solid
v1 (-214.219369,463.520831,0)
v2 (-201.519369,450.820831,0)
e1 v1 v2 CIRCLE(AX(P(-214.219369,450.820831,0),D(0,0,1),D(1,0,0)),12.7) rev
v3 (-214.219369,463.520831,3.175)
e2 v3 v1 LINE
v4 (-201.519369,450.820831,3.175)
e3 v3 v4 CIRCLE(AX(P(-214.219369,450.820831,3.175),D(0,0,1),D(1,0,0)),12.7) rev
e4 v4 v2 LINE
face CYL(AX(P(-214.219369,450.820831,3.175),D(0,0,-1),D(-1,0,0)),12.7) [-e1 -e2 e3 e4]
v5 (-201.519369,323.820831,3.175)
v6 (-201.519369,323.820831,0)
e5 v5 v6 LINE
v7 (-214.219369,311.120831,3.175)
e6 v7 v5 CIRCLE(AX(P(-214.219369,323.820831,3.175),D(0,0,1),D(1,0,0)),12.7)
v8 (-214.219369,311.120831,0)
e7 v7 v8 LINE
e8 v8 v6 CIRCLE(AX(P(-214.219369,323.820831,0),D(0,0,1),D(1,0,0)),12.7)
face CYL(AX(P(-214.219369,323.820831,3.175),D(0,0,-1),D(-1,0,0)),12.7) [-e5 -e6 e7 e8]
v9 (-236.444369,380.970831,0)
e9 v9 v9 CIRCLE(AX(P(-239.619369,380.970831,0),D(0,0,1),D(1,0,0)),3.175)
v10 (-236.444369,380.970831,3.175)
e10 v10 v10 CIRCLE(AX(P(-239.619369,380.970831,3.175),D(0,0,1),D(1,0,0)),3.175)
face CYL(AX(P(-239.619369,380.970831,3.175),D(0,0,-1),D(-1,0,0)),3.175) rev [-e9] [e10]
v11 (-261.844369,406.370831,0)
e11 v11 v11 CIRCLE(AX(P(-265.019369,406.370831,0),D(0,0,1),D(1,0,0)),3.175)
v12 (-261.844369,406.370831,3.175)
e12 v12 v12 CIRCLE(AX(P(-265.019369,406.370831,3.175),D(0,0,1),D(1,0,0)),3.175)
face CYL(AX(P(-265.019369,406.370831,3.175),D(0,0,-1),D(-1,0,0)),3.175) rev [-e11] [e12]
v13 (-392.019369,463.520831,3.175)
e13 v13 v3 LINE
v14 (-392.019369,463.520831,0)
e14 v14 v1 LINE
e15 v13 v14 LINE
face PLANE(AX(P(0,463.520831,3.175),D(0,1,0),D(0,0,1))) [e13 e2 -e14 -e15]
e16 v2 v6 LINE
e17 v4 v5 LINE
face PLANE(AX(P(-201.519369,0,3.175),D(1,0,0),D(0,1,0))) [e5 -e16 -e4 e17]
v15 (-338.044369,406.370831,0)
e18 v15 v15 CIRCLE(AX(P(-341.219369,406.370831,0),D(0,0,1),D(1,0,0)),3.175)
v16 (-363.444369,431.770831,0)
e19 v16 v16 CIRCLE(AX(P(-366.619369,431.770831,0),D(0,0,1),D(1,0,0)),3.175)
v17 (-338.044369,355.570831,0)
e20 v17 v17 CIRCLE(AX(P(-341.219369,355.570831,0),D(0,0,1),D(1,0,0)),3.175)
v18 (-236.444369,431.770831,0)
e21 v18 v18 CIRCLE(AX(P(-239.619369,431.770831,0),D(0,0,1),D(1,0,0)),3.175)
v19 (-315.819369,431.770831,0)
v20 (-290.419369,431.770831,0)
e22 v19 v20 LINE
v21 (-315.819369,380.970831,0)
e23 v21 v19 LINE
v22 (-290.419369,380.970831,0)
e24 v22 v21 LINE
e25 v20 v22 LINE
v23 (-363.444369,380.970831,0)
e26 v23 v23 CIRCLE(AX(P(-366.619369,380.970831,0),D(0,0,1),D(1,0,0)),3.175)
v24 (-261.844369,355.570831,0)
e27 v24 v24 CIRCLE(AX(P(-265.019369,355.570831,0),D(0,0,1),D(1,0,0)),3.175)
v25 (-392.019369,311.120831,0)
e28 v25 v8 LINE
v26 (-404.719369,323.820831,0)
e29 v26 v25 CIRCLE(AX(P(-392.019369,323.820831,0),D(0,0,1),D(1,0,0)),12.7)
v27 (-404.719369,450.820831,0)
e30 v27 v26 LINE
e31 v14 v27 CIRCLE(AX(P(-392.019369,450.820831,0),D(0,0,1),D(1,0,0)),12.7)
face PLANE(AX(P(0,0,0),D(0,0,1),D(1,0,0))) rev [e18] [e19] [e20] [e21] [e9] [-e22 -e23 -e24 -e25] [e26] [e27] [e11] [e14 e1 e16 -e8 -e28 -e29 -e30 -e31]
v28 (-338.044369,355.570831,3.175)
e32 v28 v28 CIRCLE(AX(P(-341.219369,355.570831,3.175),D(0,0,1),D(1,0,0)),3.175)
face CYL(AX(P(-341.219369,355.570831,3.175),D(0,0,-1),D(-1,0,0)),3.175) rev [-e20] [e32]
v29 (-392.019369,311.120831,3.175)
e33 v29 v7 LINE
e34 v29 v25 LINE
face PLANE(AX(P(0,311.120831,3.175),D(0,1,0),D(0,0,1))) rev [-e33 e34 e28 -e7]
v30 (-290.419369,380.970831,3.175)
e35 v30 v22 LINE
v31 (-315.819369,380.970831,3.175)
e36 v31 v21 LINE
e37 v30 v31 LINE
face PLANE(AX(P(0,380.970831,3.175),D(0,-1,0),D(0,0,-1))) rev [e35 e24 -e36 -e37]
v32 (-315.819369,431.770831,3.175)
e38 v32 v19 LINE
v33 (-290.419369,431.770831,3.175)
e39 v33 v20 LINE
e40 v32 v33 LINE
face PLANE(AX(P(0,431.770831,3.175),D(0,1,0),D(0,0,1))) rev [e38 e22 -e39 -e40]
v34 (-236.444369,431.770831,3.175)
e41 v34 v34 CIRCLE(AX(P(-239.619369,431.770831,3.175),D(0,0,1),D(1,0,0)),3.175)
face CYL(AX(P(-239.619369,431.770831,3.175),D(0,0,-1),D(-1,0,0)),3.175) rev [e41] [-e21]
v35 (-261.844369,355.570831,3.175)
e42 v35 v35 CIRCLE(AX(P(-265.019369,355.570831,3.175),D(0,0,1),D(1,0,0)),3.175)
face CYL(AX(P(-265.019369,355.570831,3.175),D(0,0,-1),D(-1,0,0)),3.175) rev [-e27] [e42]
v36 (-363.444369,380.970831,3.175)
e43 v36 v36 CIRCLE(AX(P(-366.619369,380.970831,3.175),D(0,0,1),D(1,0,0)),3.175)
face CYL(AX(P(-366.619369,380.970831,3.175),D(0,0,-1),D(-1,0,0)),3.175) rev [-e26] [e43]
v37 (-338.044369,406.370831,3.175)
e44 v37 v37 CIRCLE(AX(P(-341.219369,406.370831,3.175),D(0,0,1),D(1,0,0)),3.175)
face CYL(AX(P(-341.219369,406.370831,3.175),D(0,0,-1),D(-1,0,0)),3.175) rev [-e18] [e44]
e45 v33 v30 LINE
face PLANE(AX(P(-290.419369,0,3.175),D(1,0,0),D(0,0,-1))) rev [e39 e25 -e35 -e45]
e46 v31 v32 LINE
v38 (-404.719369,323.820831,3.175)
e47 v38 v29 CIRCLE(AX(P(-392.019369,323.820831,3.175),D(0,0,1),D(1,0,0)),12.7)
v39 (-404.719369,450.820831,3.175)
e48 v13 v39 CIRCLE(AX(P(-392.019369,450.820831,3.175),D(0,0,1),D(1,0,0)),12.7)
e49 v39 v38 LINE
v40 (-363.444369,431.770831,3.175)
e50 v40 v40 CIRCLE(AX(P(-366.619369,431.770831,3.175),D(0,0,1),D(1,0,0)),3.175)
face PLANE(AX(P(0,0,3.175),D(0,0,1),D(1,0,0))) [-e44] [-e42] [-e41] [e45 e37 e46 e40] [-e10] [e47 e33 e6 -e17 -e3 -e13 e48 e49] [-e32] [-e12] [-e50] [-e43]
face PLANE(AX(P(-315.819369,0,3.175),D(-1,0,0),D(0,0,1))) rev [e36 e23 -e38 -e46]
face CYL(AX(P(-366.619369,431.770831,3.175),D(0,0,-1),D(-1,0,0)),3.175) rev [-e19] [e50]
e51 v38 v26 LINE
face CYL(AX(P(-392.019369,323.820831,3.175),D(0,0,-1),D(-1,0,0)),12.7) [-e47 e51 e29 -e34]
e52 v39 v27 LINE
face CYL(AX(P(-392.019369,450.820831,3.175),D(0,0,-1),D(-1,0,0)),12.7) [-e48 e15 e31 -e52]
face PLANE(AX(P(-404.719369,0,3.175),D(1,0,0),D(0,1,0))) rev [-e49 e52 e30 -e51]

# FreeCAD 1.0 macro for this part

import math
import FreeCAD as App
import Part
import Sketcher
from FreeCAD import Vector
Q = App.Units.Quantity


def add_polygon(sketch, points):
    """Adds a closed chain of lines whose ends are joined by coincident constraints."""
    first, n = sketch.GeometryCount, len(points)
    for a, b in zip(points, points[1:] + points[:1]):
        sketch.addGeometry(Part.LineSegment(App.Vector(*a, 0), App.Vector(*b, 0)), False)
    for i in range(n):
        sketch.addConstraint(Sketcher.Constraint("Coincident", first + i, 2, first + (i + 1) % n, 1))

doc = App.newDocument("Part")
body = doc.addObject("PartDesign::Body", "Body")

# Sketch on XY plane
sketch1 = body.newObject("Sketcher::SketchObject", "Sketch")
sketch1.AttachmentSupport = (doc.getObject("XY_Plane"), [""])
sketch1.MapMode = "FlatFace"
sketch1.addGeometry(Part.LineSegment(Vector(-214.2, 463.5, 0), Vector(-392, 463.5, 0)), False)  # 0
sketch1.addGeometry(Part.ArcOfCircle(Part.Circle(Vector(-392, 450.8, 0), Vector(0, 0, 1), 12.7), math.radians(90), math.radians(180)), False)  # 1
sketch1.addGeometry(Part.LineSegment(Vector(-404.7, 450.8, 0), Vector(-404.7, 323.8, 0)), False)  # 2
sketch1.addGeometry(Part.ArcOfCircle(Part.Circle(Vector(-392, 323.8, 0), Vector(0, 0, 1), 12.7), math.radians(180), math.radians(270)), False)  # 3
sketch1.addGeometry(Part.LineSegment(Vector(-392, 311.1, 0), Vector(-214.2, 311.1, 0)), False)  # 4
sketch1.addGeometry(Part.ArcOfCircle(Part.Circle(Vector(-214.2, 323.8, 0), Vector(0, 0, 1), 12.7), math.radians(-90), math.radians(0)), False)  # 5
sketch1.addGeometry(Part.LineSegment(Vector(-201.5, 323.8, 0), Vector(-201.5, 450.8, 0)), False)  # 6
sketch1.addGeometry(Part.ArcOfCircle(Part.Circle(Vector(-214.2, 450.8, 0), Vector(0, 0, 1), 12.7), math.radians(0), math.radians(90)), False)  # 7
sketch1.addGeometry(Part.Circle(Vector(-265, 355.6, 0), Vector(0, 0, 1), 3.2), False)  # 8
sketch1.addGeometry(Part.Circle(Vector(-239.6, 381, 0), Vector(0, 0, 1), 3.2), False)  # 9
sketch1.addGeometry(Part.Circle(Vector(-341.2, 355.6, 0), Vector(0, 0, 1), 3.2), False)  # 10
sketch1.addGeometry(Part.Circle(Vector(-366.6, 381, 0), Vector(0, 0, 1), 3.2), False)  # 11
sketch1.addGeometry(Part.Circle(Vector(-265, 406.4, 0), Vector(0, 0, 1), 3.2), False)  # 12
add_polygon(sketch1, [(-315.8, 381), (-315.8, 431.8), (-290.4, 431.8), (-290.4, 381)])  # lines 13-16
sketch1.addGeometry(Part.Circle(Vector(-239.6, 431.8, 0), Vector(0, 0, 1), 3.2), False)  # 17
sketch1.addGeometry(Part.Circle(Vector(-341.2, 406.4, 0), Vector(0, 0, 1), 3.2), False)  # 18
sketch1.addGeometry(Part.Circle(Vector(-366.6, 431.8, 0), Vector(0, 0, 1), 3.2), False)  # 19
sketch1.addConstraint(Sketcher.Constraint("Tangent", 0, 2, 1, 1))
sketch1.addConstraint(Sketcher.Constraint("Tangent", 1, 2, 2, 1))
sketch1.addConstraint(Sketcher.Constraint("Tangent", 2, 2, 3, 1))
sketch1.addConstraint(Sketcher.Constraint("Tangent", 3, 2, 4, 1))
sketch1.addConstraint(Sketcher.Constraint("Tangent", 4, 2, 5, 1))
sketch1.addConstraint(Sketcher.Constraint("Tangent", 5, 2, 6, 1))
sketch1.addConstraint(Sketcher.Constraint("Tangent", 6, 2, 7, 1))
sketch1.addConstraint(Sketcher.Constraint("Tangent", 7, 2, 0, 1))
sketch1.addConstraint(Sketcher.Constraint("Horizontal", 0))
sketch1.addConstraint(Sketcher.Constraint("Vertical", 2))
sketch1.addConstraint(Sketcher.Constraint("Horizontal", 4))
sketch1.addConstraint(Sketcher.Constraint("Vertical", 6))
sketch1.addConstraint(Sketcher.Constraint("Vertical", 13))
sketch1.addConstraint(Sketcher.Constraint("Horizontal", 14))
sketch1.addConstraint(Sketcher.Constraint("Vertical", 15))
sketch1.addConstraint(Sketcher.Constraint("Horizontal", 16))
sketch1.addConstraint(Sketcher.Constraint("Equal", 1, 3))
sketch1.addConstraint(Sketcher.Constraint("Equal", 3, 5))
sketch1.addConstraint(Sketcher.Constraint("Equal", 5, 7))
sketch1.addConstraint(Sketcher.Constraint("Equal", 8, 9))
sketch1.addConstraint(Sketcher.Constraint("Equal", 9, 10))
sketch1.addConstraint(Sketcher.Constraint("Equal", 10, 11))
sketch1.addConstraint(Sketcher.Constraint("Equal", 11, 12))
sketch1.addConstraint(Sketcher.Constraint("Equal", 12, 17))
sketch1.addConstraint(Sketcher.Constraint("Equal", 17, 18))
sketch1.addConstraint(Sketcher.Constraint("Equal", 18, 19))
sketch1.addConstraint(Sketcher.Constraint("Horizontal", 8, 3, 10, 3))
sketch1.addConstraint(Sketcher.Constraint("Horizontal", 9, 3, 11, 3))
sketch1.addConstraint(Sketcher.Constraint("Horizontal", 12, 3, 18, 3))
sketch1.addConstraint(Sketcher.Constraint("Horizontal", 17, 3, 19, 3))
sketch1.addConstraint(Sketcher.Constraint("Horizontal", 19, 3, 13, 2))
sketch1.addConstraint(Sketcher.Constraint("Horizontal", 11, 3, 15, 2))
sketch1.addConstraint(Sketcher.Constraint("Vertical", 8, 3, 12, 3))
sketch1.addConstraint(Sketcher.Constraint("Vertical", 9, 3, 17, 3))
sketch1.addConstraint(Sketcher.Constraint("Vertical", 10, 3, 18, 3))
sketch1.addConstraint(Sketcher.Constraint("Vertical", 11, 3, 19, 3))
sketch1.addConstraint(Sketcher.Constraint("Radius", 1, Q("0.5 in")))
sketch1.addConstraint(Sketcher.Constraint("Diameter", 8, Q("0.25 in")))
sketch1.addConstraint(Sketcher.Constraint("DistanceX", 0, 2, 0, 1, Q("7 in")))
sketch1.addConstraint(Sketcher.Constraint("DistanceX", 14, 1, 14, 2, Q("1 in")))
sketch1.addConstraint(Sketcher.Constraint("DistanceY", 2, 2, 2, 1, Q("5 in")))
sketch1.addConstraint(Sketcher.Constraint("DistanceY", 13, 1, 13, 2, Q("2 in")))
sketch1.addConstraint(Sketcher.Constraint("DistanceX", 8, 3, 5, 3, Q("2 in")))
sketch1.addConstraint(Sketcher.Constraint("DistanceX", 8, 3, 9, 3, Q("1 in")))
sketch1.addConstraint(Sketcher.Constraint("DistanceY", 8, 3, 9, 3, Q("1 in")))
sketch1.addConstraint(Sketcher.Constraint("DistanceX", 3, 3, 10, 3, Q("2 in")))
sketch1.addConstraint(Sketcher.Constraint("DistanceX", 11, 3, 10, 3, Q("1 in")))
sketch1.addConstraint(Sketcher.Constraint("DistanceY", 9, 3, 12, 3, Q("1 in")))
sketch1.addConstraint(Sketcher.Constraint("DistanceX", 18, 3, 13, 2, Q("1 in")))
sketch1.addConstraint(Sketcher.Constraint("DistanceY", 5, 3, 8, 3, Q("1.25 in")))
sketch1.addConstraint(Sketcher.Constraint("DistanceX", 1, 3, -1, 1, Q("392.019369 mm")))
sketch1.addConstraint(Sketcher.Constraint("DistanceY", -1, 1, 1, 3, Q("450.820831 mm")))
pad1 = body.newObject("PartDesign::Pad", "Pad")
pad1.Profile = sketch1
pad1.Length = Q("0.125 in")

doc.recompute()
